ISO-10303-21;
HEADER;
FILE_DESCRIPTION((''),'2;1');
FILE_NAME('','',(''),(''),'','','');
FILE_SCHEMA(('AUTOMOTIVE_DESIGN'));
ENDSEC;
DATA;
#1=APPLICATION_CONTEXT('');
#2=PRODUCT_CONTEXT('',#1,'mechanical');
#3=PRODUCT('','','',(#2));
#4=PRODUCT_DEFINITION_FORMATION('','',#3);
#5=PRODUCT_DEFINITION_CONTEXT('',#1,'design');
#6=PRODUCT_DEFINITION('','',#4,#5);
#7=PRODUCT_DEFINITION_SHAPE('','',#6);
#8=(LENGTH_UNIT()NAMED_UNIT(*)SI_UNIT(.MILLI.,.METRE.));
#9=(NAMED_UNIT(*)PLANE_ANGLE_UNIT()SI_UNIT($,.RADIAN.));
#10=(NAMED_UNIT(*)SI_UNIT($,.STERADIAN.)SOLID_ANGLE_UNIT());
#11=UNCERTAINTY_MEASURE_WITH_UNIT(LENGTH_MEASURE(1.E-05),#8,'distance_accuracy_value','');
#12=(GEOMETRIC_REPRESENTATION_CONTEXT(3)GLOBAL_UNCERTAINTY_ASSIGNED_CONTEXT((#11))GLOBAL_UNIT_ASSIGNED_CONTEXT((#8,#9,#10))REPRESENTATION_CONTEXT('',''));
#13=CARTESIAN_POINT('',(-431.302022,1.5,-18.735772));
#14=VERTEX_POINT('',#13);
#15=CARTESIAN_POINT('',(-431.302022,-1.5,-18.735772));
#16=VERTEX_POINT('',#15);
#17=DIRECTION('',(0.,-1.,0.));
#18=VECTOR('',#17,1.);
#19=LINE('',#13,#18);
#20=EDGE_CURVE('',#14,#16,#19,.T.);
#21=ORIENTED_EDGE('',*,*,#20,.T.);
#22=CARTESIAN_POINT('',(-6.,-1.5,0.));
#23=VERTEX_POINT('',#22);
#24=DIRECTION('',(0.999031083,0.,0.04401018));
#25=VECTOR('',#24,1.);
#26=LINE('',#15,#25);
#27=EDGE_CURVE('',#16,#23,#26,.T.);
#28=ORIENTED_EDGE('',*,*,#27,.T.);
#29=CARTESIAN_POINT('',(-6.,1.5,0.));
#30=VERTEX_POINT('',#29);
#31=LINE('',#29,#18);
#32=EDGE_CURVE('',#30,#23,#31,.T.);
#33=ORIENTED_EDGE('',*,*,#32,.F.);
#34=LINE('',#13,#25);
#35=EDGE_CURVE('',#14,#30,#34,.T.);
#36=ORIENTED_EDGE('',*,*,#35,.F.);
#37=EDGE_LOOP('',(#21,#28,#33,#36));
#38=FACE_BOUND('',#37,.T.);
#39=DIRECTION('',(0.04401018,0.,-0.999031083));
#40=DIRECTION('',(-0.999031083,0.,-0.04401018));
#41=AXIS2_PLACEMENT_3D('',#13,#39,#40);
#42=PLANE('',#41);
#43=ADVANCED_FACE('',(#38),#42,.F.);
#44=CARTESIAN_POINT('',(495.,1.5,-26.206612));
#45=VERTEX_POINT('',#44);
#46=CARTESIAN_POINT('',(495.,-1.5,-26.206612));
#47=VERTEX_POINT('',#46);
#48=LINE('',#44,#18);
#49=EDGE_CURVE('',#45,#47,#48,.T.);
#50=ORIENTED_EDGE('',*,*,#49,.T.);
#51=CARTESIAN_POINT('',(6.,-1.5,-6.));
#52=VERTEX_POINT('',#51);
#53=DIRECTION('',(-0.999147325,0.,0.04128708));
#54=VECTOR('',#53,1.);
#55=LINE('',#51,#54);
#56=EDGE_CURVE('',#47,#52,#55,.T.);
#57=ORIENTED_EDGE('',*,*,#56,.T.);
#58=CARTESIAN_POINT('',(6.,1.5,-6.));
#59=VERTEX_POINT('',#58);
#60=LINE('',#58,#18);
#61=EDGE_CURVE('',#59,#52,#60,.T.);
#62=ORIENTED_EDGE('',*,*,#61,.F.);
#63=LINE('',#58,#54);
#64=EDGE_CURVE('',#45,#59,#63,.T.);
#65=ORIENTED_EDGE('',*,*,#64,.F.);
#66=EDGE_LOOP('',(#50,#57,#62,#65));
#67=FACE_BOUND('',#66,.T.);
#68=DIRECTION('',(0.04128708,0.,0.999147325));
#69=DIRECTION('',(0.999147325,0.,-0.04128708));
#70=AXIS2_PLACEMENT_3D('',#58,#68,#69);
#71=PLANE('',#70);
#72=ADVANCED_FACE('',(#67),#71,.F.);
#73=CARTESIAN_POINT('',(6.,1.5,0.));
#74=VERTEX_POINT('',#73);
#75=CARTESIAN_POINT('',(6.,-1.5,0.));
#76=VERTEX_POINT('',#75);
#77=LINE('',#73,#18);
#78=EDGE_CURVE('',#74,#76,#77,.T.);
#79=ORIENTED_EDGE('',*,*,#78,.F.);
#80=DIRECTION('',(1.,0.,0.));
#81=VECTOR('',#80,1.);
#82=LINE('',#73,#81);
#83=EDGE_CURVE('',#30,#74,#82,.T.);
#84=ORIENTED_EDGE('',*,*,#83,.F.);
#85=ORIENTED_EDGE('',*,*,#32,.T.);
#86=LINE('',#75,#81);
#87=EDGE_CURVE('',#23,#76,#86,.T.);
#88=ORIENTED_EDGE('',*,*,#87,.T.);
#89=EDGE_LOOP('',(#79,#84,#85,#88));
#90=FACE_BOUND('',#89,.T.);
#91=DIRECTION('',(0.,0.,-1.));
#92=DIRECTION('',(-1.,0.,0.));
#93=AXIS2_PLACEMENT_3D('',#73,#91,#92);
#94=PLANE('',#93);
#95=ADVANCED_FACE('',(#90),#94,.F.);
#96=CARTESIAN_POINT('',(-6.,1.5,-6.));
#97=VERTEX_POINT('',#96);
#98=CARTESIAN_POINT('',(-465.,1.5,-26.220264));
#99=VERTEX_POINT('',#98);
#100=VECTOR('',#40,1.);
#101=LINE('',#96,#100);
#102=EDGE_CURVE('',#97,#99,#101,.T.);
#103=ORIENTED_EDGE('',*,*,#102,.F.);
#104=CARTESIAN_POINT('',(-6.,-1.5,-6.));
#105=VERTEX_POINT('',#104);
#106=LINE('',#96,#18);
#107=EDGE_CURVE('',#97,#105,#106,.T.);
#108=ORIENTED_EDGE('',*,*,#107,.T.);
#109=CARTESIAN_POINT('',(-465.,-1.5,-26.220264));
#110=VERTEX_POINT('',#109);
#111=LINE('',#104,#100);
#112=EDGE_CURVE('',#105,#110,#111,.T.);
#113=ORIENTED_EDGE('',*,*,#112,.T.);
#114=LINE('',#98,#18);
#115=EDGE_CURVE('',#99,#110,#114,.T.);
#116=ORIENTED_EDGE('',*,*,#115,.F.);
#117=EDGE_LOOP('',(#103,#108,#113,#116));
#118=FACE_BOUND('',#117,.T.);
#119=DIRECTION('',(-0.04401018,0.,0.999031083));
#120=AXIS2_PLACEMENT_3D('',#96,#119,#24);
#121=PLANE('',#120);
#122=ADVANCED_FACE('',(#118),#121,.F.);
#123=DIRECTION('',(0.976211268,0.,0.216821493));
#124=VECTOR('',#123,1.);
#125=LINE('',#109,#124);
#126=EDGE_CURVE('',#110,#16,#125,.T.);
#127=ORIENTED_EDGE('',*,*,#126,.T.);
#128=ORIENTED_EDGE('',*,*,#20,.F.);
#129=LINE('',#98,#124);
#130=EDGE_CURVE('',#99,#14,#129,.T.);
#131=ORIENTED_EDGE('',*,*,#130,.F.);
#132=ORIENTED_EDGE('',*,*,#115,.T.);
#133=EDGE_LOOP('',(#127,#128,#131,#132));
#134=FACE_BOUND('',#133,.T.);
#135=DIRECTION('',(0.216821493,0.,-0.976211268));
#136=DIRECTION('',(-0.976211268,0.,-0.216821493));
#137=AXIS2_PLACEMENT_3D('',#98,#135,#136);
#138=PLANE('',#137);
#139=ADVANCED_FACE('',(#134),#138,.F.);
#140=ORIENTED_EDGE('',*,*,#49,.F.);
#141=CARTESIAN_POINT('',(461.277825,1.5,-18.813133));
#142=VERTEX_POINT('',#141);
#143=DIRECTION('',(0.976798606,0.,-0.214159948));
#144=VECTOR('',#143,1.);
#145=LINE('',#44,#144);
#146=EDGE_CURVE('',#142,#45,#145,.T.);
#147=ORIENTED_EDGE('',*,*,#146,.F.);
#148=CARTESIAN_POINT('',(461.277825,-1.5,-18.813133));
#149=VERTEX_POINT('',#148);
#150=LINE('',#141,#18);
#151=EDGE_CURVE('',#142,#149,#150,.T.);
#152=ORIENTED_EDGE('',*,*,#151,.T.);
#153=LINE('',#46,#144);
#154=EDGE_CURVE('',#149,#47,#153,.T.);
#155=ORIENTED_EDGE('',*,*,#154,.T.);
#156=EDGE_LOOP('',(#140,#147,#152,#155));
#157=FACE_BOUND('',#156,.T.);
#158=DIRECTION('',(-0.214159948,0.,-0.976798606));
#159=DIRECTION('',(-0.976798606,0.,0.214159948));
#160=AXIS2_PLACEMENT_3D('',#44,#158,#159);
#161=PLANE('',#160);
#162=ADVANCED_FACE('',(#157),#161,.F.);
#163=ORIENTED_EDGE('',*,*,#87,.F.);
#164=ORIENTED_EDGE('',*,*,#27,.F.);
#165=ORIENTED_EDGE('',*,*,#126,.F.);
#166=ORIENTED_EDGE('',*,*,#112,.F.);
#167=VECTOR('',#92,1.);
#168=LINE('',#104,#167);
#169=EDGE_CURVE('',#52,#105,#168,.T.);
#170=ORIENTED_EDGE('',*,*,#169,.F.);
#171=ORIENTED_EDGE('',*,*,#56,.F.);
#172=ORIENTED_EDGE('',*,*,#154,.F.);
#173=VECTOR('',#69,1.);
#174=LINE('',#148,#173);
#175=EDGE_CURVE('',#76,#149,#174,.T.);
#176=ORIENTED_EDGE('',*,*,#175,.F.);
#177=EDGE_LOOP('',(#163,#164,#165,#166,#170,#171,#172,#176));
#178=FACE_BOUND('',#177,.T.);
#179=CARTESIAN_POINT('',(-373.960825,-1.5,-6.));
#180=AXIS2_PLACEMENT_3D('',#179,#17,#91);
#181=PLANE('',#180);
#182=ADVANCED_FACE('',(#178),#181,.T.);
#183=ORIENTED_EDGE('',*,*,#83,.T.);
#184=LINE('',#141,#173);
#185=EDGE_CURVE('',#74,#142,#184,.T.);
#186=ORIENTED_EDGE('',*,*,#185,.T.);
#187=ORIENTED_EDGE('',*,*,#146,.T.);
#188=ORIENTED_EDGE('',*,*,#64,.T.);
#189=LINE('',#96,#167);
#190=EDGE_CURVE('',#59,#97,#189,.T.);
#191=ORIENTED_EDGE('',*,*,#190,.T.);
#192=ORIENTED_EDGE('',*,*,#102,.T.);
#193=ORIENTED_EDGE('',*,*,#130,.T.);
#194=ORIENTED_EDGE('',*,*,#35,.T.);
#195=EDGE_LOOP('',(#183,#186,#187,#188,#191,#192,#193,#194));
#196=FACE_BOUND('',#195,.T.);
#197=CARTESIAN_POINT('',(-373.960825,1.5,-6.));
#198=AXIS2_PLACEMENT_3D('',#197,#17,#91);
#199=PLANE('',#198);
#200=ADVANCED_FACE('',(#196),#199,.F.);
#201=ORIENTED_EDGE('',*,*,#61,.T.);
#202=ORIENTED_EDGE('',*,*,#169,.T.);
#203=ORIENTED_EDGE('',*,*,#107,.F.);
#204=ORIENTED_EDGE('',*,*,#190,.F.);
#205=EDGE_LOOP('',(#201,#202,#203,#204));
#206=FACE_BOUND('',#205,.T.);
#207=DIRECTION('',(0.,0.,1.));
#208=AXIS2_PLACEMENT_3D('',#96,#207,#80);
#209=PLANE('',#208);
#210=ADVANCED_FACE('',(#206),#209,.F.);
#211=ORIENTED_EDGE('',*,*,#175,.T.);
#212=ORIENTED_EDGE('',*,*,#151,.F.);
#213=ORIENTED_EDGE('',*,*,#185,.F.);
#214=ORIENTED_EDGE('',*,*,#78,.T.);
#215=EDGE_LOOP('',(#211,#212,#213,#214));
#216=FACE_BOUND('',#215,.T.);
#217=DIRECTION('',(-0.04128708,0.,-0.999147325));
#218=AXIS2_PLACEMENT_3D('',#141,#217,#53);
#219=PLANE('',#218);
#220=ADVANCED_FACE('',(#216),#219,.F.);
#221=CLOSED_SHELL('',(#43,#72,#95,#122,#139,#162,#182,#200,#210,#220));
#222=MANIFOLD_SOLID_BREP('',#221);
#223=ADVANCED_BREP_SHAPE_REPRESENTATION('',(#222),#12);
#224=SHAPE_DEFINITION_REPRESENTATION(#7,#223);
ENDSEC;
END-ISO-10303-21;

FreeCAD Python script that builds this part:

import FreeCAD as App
import Part
import Sketcher

V = App.Vector


def add_polygon(sketch, points):
    """Adds a closed chain of lines whose ends are joined by coincident constraints."""
    first, n = sketch.GeometryCount, len(points)
    for a, b in zip(points, points[1:] + points[:1]):
        sketch.addGeometry(Part.LineSegment(App.Vector(*a, 0), App.Vector(*b, 0)), False)
    for i in range(n):
        sketch.addConstraint(Sketcher.Constraint("Coincident", first + i, 2, first + (i + 1) % n, 1))

doc = App.newDocument("Part")
body = doc.addObject("PartDesign::Body", "Body")

# Sketch on XZ plane
sketch1 = body.newObject("Sketcher::SketchObject", "Sketch")
sketch1.AttachmentSupport = (doc.getObject("XZ_Plane"), [""])
sketch1.MapMode = "FlatFace"
add_polygon(sketch1, [(-6, -6), (-465, -26.220264), (-431.302022, -18.735772), (-6, 0), (6, 0), (461.277825, -18.813133), (495, -26.206612), (6, -6)])  # lines 0-7
sketch1.addConstraint(Sketcher.Constraint("Horizontal", 3))
sketch1.addConstraint(Sketcher.Constraint("Horizontal", 7))
sketch1.addConstraint(Sketcher.Constraint("Symmetric", 2, 2, 3, 2, -1, 1))
sketch1.addConstraint(Sketcher.Constraint("Parallel", 0, 2))
sketch1.addConstraint(Sketcher.Constraint("Parallel", 4, 6))
sketch1.addConstraint(Sketcher.Constraint("Vertical", 3, 2, 6, 2))
sketch1.addConstraint(Sketcher.Constraint("Vertical", 2, 2, 7, 2))
sketch1.addConstraint(Sketcher.Constraint("DistanceX", 3, 1, 3, 2, 12.0))
sketch1.addConstraint(Sketcher.Constraint("DistanceX", 0, 2, -1, 1, 465.0))
sketch1.addConstraint(Sketcher.Constraint("DistanceX", -1, 1, 5, 2, 495.0))
sketch1.addConstraint(Sketcher.Constraint("DistanceY", 6, 2, -1, 1, 6.0))
sketch1.addConstraint(Sketcher.Constraint("Distance", 4, 455.66636))
sketch1.addConstraint(Sketcher.Constraint("Distance", 5, 34.523161))
sketch1.addConstraint(Sketcher.Constraint("DistanceY", 1, 2, -1, 1, 18.735772))
sketch1.addConstraint(Sketcher.Constraint("DistanceY", 0, 2, 4, 2, 7.407131))
pad1 = body.newObject("PartDesign::Pad", "Pad")
pad1.Profile = sketch1
pad1.Length = 3
pad1.Midplane = True

doc.recompute()
